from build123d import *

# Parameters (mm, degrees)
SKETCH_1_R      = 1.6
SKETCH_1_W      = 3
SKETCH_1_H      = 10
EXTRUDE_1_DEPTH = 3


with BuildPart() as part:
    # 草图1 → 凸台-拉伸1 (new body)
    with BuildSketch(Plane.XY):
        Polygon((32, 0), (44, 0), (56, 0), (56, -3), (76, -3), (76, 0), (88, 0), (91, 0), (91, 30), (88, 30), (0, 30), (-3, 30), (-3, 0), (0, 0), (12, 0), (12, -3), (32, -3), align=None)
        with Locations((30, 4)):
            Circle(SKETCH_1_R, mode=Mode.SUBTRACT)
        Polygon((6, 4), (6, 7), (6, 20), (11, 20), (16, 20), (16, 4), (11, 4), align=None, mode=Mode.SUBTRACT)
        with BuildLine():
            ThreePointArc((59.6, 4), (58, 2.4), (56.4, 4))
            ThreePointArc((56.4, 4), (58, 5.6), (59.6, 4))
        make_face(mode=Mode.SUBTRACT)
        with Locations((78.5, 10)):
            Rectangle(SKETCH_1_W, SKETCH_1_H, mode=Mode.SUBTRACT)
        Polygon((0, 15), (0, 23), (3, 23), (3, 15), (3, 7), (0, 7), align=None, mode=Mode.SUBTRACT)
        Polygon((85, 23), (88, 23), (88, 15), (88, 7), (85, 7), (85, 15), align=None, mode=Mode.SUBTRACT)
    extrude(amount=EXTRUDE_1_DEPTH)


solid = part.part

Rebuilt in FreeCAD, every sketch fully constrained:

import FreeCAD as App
import Part
import Sketcher
from FreeCAD import Vector


def add_polygon(sketch, points):
    """Adds a closed chain of lines whose ends are joined by coincident constraints."""
    first, n = sketch.GeometryCount, len(points)
    for a, b in zip(points, points[1:] + points[:1]):
        sketch.addGeometry(Part.LineSegment(App.Vector(*a, 0), App.Vector(*b, 0)), False)
    for i in range(n):
        sketch.addConstraint(Sketcher.Constraint("Coincident", first + i, 2, first + (i + 1) % n, 1))

doc = App.newDocument("Part")
params = doc.addObject("Spreadsheet::Sheet", "Params")
for row, (alias, value) in enumerate([
    ("sketch1_diameter", "3.2 mm"),
    ("sketch1_width", "24 mm"),
    ("sketch1_width2", "20 mm"),
    ("sketch1_width3", "15 mm"),
    ("sketch1_width4", "10 mm"),
    ("pad1_length", "3 mm"),
], start=1):
    params.set(f"A{row}", alias)
    params.set(f"B{row}", "=" + value)
    params.setAlias(f"B{row}", alias)

body = doc.addObject("PartDesign::Body", "Body")

sketch1 = doc.addObject("Sketcher::SketchObject", "Sketch")
body.addObject(sketch1)
sketch1.AttachmentSupport = (doc.XY_Plane, [""])
sketch1.MapMode = "FlatFace"
add_polygon(sketch1, [(32, 0), (56, 0), (56, -3), (76, -3), (76, 0), (91, 0), (91, 30), (-3, 30), (-3, 0), (12, 0), (12, -3), (32, -3)])
sketch1.addGeometry(Part.Circle(Vector(30, 4, 0), Vector(0, 0, 1), 1.6), False)
add_polygon(sketch1, [(16, 4), (6, 4), (6, 20), (16, 20)])
sketch1.addGeometry(Part.Circle(Vector(58, 4, 0), Vector(0, 0, 1), 1.6), False)
add_polygon(sketch1, [(80, 5), (77, 5), (77, 15), (80, 15)])
add_polygon(sketch1, [(0, 7), (0, 23), (3, 23), (3, 7)])
add_polygon(sketch1, [(85, 7), (85, 23), (88, 23), (88, 7)])
sketch1.addConstraint([
    Sketcher.Constraint("Horizontal", 0),
    Sketcher.Constraint("Vertical", 1),
    Sketcher.Constraint("Horizontal", 2),
    Sketcher.Constraint("Vertical", 3),
    Sketcher.Constraint("Horizontal", 4),
    Sketcher.Constraint("Vertical", 5),
    Sketcher.Constraint("Horizontal", 6),
    Sketcher.Constraint("Vertical", 7),
    Sketcher.Constraint("Horizontal", 8),
    Sketcher.Constraint("Vertical", 9),
    Sketcher.Constraint("Horizontal", 10),
    Sketcher.Constraint("Vertical", 11),
    Sketcher.Constraint("Horizontal", 13),
    Sketcher.Constraint("Vertical", 14),
    Sketcher.Constraint("Horizontal", 15),
    Sketcher.Constraint("Vertical", 16),
    Sketcher.Constraint("Horizontal", 18),
    Sketcher.Constraint("Vertical", 19),
    Sketcher.Constraint("Horizontal", 20),
    Sketcher.Constraint("Vertical", 21),
    Sketcher.Constraint("Vertical", 22),
    Sketcher.Constraint("Horizontal", 23),
    Sketcher.Constraint("Vertical", 24),
    Sketcher.Constraint("Horizontal", 25),
    Sketcher.Constraint("Vertical", 26),
    Sketcher.Constraint("Horizontal", 27),
    Sketcher.Constraint("Vertical", 28),
    Sketcher.Constraint("Horizontal", 29),
    Sketcher.Constraint("Equal", 12, 17),
    Sketcher.Constraint("PointOnObject", 0, 2, -1),
    Sketcher.Constraint("PointOnObject", 3, 2, -1),
    Sketcher.Constraint("PointOnObject", 7, 2, -1),
    Sketcher.Constraint("PointOnObject", 22, 2, -2),
    Sketcher.Constraint("Horizontal", 12, 3, 17, 3),
    Sketcher.Constraint("Horizontal", 2, 2, 9, 2),
    Sketcher.Constraint("Horizontal", 17, 3, 13, 2),
    Sketcher.Constraint("Horizontal", 23, 2, 26, 2),
    Sketcher.Constraint("Horizontal", 25, 2, 28, 2),
    Sketcher.Constraint("Equal", 4, 8),
    Sketcher.Constraint("Equal", 2, 10),
    Sketcher.Constraint("Equal", 20, 23),
    Sketcher.Constraint("Equal", 25, 27),
    Sketcher.Constraint("Equal", 29, 1),
    Sketcher.Constraint("Equal", 15, 19),
    Sketcher.Constraint("Equal", 16, 22),
    Sketcher.Constraint("Diameter", 12, 3.2),
    Sketcher.Constraint("DistanceX", 0, 1, 0, 2, 24.0),
    Sketcher.Constraint("DistanceX", 2, 1, 2, 2, 20.0),
    Sketcher.Constraint("DistanceX", 4, 1, 4, 2, 15.0),
    Sketcher.Constraint("DistanceX", 13, 2, 13, 1, 10.0),
    Sketcher.Constraint("DistanceX", 18, 2, 18, 1, 3.0),
    Sketcher.Constraint("DistanceY", 5, 1, 5, 2, 30.0),
    Sketcher.Constraint("DistanceY", 14, 1, 14, 2, 16.0),
    Sketcher.Constraint("DistanceX", -1, 1, 12, 3, 30.0),
    Sketcher.Constraint("DistanceY", -1, 1, 12, 3, 4.0),
    Sketcher.Constraint("DistanceX", -1, 1, 17, 3, 58.0),
    Sketcher.Constraint("DistanceX", -1, 1, 0, 2, 56.0),
    Sketcher.Constraint("DistanceX", -1, 1, 13, 2, 6.0),
    Sketcher.Constraint("DistanceX", -1, 1, 18, 2, 77.0),
    Sketcher.Constraint("DistanceY", -1, 1, 18, 2, 5.0),
    Sketcher.Constraint("DistanceY", -1, 1, 22, 2, 23.0),
    Sketcher.Constraint("DistanceX", -1, 1, 26, 2, 85.0),
])
sketch1.setExpression("Constraints[73]", "Params.sketch1_diameter")
sketch1.setExpression("Constraints[74]", "Params.sketch1_width")
sketch1.setExpression("Constraints[75]", "Params.sketch1_width2")
sketch1.setExpression("Constraints[76]", "Params.sketch1_width3")
sketch1.setExpression("Constraints[77]", "Params.sketch1_width4")
pad1 = doc.addObject("PartDesign::Pad", "Pad")
body.addObject(pad1)
pad1.Profile = sketch1
pad1.setExpression("Length", "Params.pad1_length")

doc.recompute()
